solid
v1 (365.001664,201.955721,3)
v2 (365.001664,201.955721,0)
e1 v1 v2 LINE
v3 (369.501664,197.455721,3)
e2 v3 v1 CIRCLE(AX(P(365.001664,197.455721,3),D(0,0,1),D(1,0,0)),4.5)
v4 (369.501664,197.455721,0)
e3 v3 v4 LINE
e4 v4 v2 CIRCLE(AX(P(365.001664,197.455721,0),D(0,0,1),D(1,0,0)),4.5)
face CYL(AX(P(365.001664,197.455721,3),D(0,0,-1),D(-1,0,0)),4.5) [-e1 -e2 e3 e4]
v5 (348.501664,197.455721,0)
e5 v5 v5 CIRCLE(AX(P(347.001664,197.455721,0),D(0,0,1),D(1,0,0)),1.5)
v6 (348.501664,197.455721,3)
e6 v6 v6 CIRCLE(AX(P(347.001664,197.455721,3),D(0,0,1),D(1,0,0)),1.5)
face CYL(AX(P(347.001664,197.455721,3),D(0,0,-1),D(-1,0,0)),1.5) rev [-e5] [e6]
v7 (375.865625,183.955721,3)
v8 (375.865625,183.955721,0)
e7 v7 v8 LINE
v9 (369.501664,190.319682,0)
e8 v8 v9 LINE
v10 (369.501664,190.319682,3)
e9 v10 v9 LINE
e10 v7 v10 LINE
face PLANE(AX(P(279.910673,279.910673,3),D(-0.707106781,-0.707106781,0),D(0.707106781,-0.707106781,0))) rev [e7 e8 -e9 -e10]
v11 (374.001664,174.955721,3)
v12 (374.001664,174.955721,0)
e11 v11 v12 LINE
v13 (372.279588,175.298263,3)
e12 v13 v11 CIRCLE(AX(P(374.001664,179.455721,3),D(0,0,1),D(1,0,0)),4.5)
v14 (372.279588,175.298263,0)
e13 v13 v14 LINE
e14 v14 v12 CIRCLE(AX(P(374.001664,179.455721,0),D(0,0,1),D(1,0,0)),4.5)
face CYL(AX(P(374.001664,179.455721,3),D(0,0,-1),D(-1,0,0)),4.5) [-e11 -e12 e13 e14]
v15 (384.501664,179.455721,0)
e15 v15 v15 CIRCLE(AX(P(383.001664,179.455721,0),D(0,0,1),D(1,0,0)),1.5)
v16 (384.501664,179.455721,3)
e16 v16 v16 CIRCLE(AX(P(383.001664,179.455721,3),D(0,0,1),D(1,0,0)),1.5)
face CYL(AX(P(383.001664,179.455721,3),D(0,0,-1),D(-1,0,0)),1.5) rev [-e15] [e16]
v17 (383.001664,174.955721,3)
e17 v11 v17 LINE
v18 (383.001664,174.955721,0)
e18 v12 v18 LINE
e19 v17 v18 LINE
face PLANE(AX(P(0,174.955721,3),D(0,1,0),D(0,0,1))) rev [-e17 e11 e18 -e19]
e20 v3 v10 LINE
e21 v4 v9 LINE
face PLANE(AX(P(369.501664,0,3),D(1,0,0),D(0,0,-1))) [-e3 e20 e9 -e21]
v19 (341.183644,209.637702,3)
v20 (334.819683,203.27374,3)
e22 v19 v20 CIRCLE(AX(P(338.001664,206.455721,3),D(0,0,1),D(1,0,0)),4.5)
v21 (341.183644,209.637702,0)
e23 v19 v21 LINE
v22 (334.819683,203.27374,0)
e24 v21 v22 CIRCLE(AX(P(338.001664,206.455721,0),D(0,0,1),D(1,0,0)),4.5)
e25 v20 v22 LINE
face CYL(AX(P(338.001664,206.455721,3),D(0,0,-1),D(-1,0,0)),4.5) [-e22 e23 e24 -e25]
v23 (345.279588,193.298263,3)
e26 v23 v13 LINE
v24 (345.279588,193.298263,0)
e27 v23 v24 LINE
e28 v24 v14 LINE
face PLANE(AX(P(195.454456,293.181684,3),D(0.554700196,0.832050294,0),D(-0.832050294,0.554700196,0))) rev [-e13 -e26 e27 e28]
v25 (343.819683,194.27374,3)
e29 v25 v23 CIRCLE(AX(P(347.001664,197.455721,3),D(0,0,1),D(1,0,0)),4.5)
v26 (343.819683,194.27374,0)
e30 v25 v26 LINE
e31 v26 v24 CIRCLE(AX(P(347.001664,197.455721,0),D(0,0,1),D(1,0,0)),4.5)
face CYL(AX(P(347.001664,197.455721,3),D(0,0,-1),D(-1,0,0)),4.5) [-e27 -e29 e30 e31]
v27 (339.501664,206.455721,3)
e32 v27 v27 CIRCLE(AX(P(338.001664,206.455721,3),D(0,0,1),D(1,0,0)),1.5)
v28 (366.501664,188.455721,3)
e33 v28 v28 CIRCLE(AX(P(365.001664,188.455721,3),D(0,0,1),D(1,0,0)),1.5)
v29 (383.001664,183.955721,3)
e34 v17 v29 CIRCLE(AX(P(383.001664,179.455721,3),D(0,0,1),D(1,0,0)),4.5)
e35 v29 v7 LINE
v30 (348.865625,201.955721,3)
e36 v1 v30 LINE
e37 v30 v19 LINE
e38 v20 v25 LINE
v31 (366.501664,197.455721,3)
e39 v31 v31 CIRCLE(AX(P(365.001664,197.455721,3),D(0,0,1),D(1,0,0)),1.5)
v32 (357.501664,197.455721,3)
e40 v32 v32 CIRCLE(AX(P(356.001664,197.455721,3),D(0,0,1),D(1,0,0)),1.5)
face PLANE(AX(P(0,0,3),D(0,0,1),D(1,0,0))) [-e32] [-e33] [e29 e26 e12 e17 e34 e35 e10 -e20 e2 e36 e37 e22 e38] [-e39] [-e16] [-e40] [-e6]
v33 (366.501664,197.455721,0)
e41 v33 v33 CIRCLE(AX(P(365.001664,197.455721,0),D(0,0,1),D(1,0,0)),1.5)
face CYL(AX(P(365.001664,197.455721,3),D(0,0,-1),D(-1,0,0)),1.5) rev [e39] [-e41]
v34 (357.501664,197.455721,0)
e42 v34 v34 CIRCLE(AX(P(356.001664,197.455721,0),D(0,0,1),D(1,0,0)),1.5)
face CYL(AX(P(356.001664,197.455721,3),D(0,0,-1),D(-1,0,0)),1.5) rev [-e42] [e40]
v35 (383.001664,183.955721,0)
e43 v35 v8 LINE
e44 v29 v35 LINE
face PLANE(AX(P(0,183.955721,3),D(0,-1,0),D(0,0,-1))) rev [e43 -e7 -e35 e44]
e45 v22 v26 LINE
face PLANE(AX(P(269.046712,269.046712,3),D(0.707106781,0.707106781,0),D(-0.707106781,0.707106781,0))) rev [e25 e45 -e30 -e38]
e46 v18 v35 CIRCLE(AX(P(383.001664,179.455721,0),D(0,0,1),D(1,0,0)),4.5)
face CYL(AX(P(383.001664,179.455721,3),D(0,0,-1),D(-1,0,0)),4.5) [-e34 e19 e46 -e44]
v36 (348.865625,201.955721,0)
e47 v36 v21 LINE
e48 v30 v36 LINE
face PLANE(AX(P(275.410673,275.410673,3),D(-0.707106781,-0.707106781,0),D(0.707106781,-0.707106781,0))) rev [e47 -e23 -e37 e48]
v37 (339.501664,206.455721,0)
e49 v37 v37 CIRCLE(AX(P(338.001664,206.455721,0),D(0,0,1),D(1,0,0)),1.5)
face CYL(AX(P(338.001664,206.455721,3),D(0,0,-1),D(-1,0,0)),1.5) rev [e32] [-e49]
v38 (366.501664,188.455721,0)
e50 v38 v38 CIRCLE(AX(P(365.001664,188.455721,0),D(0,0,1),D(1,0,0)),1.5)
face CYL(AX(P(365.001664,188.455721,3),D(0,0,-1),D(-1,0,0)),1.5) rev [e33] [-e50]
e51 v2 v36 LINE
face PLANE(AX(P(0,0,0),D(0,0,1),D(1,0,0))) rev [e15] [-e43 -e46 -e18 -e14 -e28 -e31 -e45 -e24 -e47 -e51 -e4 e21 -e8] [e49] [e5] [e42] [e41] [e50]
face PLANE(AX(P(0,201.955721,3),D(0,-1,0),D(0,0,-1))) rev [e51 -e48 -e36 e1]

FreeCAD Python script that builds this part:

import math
import FreeCAD as App
import Part
import Sketcher
from FreeCAD import Vector
Q = App.Units.Quantity

doc = App.newDocument("Part")
body = doc.addObject("PartDesign::Body", "Body")

sketch1 = doc.addObject("Sketcher::SketchObject", "Sketch")
body.addObject(sketch1)
sketch1.AttachmentSupport = (doc.XY_Plane, [""])
sketch1.MapMode = "FlatFace"
sketch1.addGeometry([
    Part.LineSegment(Vector(348.9, 202, 0), Vector(341.2, 209.6, 0)),
    Part.ArcOfCircle(Part.Circle(Vector(338, 206.5, 0), Vector(0, 0, 1), 4.5), math.radians(45), math.radians(225)),
    Part.LineSegment(Vector(334.8, 203.3, 0), Vector(343.8, 194.3, 0)),
    Part.ArcOfCircle(Part.Circle(Vector(347, 197.5, 0), Vector(0, 0, 1), 4.5), math.radians(-135), math.radians(-113)),
    Part.LineSegment(Vector(345.3, 193.3, 0), Vector(372.3, 175.3, 0)),
    Part.ArcOfCircle(Part.Circle(Vector(374, 179.5, 0), Vector(0, 0, 1), 4.5), math.radians(-113), math.radians(-90)),
    Part.LineSegment(Vector(374, 175, 0), Vector(383, 175, 0)),
    Part.ArcOfCircle(Part.Circle(Vector(383, 179.5, 0), Vector(0, 0, 1), 4.5), math.radians(-90), math.radians(90)),
    Part.LineSegment(Vector(383, 184, 0), Vector(375.9, 184, 0)),
    Part.LineSegment(Vector(375.9, 184, 0), Vector(369.5, 190.3, 0)),
    Part.LineSegment(Vector(369.5, 190.3, 0), Vector(369.5, 197.5, 0)),
    Part.ArcOfCircle(Part.Circle(Vector(365, 197.5, 0), Vector(0, 0, 1), 4.5), math.radians(0), math.radians(90)),
    Part.LineSegment(Vector(365, 202, 0), Vector(348.9, 202, 0)),
    Part.Circle(Vector(383, 179.5, 0), Vector(0, 0, 1), 1.5),
    Part.Circle(Vector(365, 188.5, 0), Vector(0, 0, 1), 1.5),
    Part.Circle(Vector(347, 197.5, 0), Vector(0, 0, 1), 1.5),
    Part.Circle(Vector(356, 197.5, 0), Vector(0, 0, 1), 1.5),
    Part.Circle(Vector(338, 206.5, 0), Vector(0, 0, 1), 1.5),
    Part.Circle(Vector(365, 197.5, 0), Vector(0, 0, 1), 1.5),
], False)
sketch1.addConstraint([
    Sketcher.Constraint("Tangent", 0, 2, 1, 1),
    Sketcher.Constraint("Tangent", 1, 2, 2, 1),
    Sketcher.Constraint("Tangent", 2, 2, 3, 1),
    Sketcher.Constraint("Coincident", 3, 2, 4, 1),
    Sketcher.Constraint("Coincident", 4, 2, 5, 1),
    Sketcher.Constraint("Tangent", 5, 2, 6, 1),
    Sketcher.Constraint("Tangent", 6, 2, 7, 1),
    Sketcher.Constraint("Tangent", 7, 2, 8, 1),
    Sketcher.Constraint("Coincident", 8, 2, 9, 1),
    Sketcher.Constraint("Coincident", 9, 2, 10, 1),
    Sketcher.Constraint("Tangent", 10, 2, 11, 1),
    Sketcher.Constraint("Tangent", 11, 2, 12, 1),
    Sketcher.Constraint("Coincident", 12, 2, 0, 1),
    Sketcher.Constraint("Horizontal", 6),
    Sketcher.Constraint("Horizontal", 8),
    Sketcher.Constraint("Vertical", 10),
    Sketcher.Constraint("Horizontal", 12),
    Sketcher.Constraint("Coincident", 13, 3, 7, 3),
    Sketcher.Constraint("Coincident", 15, 3, 3, 3),
    Sketcher.Constraint("Coincident", 17, 3, 1, 3),
    Sketcher.Constraint("Coincident", 18, 3, 11, 3),
    Sketcher.Constraint("Equal", 1, 3),
    Sketcher.Constraint("Equal", 3, 5),
    Sketcher.Constraint("Equal", 5, 7),
    Sketcher.Constraint("Equal", 7, 11),
    Sketcher.Constraint("Equal", 13, 14),
    Sketcher.Constraint("Equal", 14, 15),
    Sketcher.Constraint("Equal", 15, 16),
    Sketcher.Constraint("Equal", 16, 17),
    Sketcher.Constraint("Equal", 17, 18),
    Sketcher.Constraint("Parallel", 0, 2),
    Sketcher.Constraint("Parallel", 2, 9),
    Sketcher.Constraint("Horizontal", 3, 3, 11, 3),
    Sketcher.Constraint("Horizontal", 15, 3, 16, 3),
    Sketcher.Constraint("Vertical", 11, 3, 14, 3),
    Sketcher.Constraint("Equal", 8, 10),
    Sketcher.Constraint("Diameter", 13, 3.0),
    Sketcher.Constraint("Radius", 1, 4.5),
    Sketcher.Constraint("DistanceX", 6, 1, 6, 2, 9.0),
    Sketcher.Constraint("Angle", 0, Q("135 deg")),
    Sketcher.Constraint("Distance", 9, 9.0),
    Sketcher.Constraint("DistanceX", 1, 3, 3, 3, 9.0),
    Sketcher.Constraint("DistanceX", 3, 3, 5, 3, 27.0),
    Sketcher.Constraint("DistanceY", 5, 3, 3, 3, 18.0),
    Sketcher.Constraint("DistanceY", 14, 3, 11, 3, 9.0),
    Sketcher.Constraint("DistanceX", 3, 3, 16, 3, 9.0),
    Sketcher.Constraint("DistanceY", -1, 1, 0, 2, 209.637702),
    Sketcher.Constraint("Distance", 4, 32.449961),
    Sketcher.Constraint("DistanceX", -1, 1, 3, 2, 345.279588),
    Sketcher.Constraint("DistanceX", -1, 1, 1, 3, 338.001664),
])
pad1 = doc.addObject("PartDesign::Pad", "Pad")
body.addObject(pad1)
pad1.Profile = sketch1
pad1.Length = 3

doc.recompute()
